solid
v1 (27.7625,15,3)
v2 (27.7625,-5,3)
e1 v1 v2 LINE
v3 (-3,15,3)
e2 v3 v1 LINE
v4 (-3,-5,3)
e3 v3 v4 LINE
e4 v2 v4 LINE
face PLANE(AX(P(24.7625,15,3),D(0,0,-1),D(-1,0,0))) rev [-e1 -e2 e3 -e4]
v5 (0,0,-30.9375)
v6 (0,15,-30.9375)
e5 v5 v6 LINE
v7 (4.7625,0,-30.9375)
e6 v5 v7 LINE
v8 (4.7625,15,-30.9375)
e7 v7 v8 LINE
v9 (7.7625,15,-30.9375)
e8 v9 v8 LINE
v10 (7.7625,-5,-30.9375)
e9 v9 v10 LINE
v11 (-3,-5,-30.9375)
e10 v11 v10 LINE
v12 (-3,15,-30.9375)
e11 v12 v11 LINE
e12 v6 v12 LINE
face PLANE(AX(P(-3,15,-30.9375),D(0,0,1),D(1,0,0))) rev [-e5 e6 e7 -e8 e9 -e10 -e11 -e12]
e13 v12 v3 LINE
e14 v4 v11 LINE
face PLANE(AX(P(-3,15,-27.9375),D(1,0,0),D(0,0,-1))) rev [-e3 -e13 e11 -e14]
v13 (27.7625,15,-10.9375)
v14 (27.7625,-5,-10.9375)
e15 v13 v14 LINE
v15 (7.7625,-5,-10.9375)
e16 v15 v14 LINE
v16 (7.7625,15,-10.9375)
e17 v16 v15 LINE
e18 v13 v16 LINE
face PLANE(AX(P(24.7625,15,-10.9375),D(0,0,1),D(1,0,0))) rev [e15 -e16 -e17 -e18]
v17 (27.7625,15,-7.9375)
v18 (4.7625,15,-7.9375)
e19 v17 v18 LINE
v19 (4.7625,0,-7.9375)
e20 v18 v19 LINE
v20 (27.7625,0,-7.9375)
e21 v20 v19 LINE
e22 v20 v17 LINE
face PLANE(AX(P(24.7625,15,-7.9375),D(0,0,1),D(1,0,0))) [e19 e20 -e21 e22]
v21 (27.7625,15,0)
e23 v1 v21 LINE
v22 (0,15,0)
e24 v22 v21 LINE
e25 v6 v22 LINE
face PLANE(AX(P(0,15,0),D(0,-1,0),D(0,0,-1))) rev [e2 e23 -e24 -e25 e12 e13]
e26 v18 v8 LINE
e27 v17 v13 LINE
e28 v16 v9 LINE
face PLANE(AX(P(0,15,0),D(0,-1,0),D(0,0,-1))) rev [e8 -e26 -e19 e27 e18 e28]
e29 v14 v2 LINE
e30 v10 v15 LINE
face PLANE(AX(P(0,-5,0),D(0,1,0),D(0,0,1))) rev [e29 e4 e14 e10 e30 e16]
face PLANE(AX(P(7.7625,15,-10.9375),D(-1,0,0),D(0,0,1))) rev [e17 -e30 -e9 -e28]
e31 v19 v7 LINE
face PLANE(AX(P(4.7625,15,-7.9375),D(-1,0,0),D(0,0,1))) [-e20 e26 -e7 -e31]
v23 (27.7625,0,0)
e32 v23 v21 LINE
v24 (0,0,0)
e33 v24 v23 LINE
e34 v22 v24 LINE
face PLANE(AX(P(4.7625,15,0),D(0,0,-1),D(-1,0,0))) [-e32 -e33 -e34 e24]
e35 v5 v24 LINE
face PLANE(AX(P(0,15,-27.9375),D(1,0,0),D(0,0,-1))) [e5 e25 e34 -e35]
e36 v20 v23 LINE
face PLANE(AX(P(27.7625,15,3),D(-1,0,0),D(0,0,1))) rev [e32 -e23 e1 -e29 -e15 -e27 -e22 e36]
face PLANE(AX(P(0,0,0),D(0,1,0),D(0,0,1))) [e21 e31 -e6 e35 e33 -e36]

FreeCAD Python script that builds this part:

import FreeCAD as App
import Part
import Sketcher
from FreeCAD import Vector
Q = App.Units.Quantity


def add_polygon(sketch, points):
    """Adds a closed chain of lines whose ends are joined by coincident constraints."""
    first, n = sketch.GeometryCount, len(points)
    for a, b in zip(points, points[1:] + points[:1]):
        sketch.addGeometry(Part.LineSegment(App.Vector(*a, 0), App.Vector(*b, 0)), False)
    for i in range(n):
        sketch.addConstraint(Sketcher.Constraint("Coincident", first + i, 2, first + (i + 1) % n, 1))

doc = App.newDocument("Part")
body = doc.addObject("PartDesign::Body", "Body")

# Sketch on XZ plane
sketch1 = body.newObject("Sketcher::SketchObject", "Sketch")
sketch1.AttachmentSupport = (doc.getObject("XZ_Plane"), [""])
sketch1.MapMode = "FlatFace"
add_polygon(sketch1, [(7.7625, -10.9375), (7.7625, -30.9375), (-3, -30.9375), (-3, 3), (27.7625, 3), (27.7625, -10.9375)])  # lines 0-5
add_polygon(sketch1, [(24.7625, 0), (0, 0), (0, -27.9375), (4.7625, -27.9375), (4.7625, -7.9375), (24.7625, -7.9375)])  # lines 6-11
sketch1.addConstraint(Sketcher.Constraint("Vertical", 0))
sketch1.addConstraint(Sketcher.Constraint("Horizontal", 1))
sketch1.addConstraint(Sketcher.Constraint("Vertical", 2))
sketch1.addConstraint(Sketcher.Constraint("Horizontal", 3))
sketch1.addConstraint(Sketcher.Constraint("Vertical", 4))
sketch1.addConstraint(Sketcher.Constraint("Horizontal", 5))
sketch1.addConstraint(Sketcher.Constraint("Horizontal", 6))
sketch1.addConstraint(Sketcher.Constraint("Vertical", 7))
sketch1.addConstraint(Sketcher.Constraint("Horizontal", 8))
sketch1.addConstraint(Sketcher.Constraint("Vertical", 9))
sketch1.addConstraint(Sketcher.Constraint("Horizontal", 10))
sketch1.addConstraint(Sketcher.Constraint("Vertical", 11))
sketch1.addConstraint(Sketcher.Constraint("Coincident", 6, 2, -1, 1))
sketch1.addConstraint(Sketcher.Constraint("Equal", 5, 10))
sketch1.addConstraint(Sketcher.Constraint("Equal", 10, 0))
sketch1.addConstraint(Sketcher.Constraint("Equal", 0, 9))
sketch1.addConstraint(Sketcher.Constraint("DistanceX", 5, 2, 5, 1, Q("20 mm")))
sketch1.addConstraint(Sketcher.Constraint("DistanceX", 1, 2, -1, 1, Q("3 mm")))
sketch1.addConstraint(Sketcher.Constraint("DistanceY", -1, 1, 2, 2, Q("3 mm")))
sketch1.addConstraint(Sketcher.Constraint("DistanceY", 1, 2, 7, 2, Q("3 mm")))
sketch1.addConstraint(Sketcher.Constraint("DistanceX", 8, 2, 0, 2, Q("3 mm")))
sketch1.addConstraint(Sketcher.Constraint("DistanceX", 1, 2, 1, 1, Q("10.7625 mm")))
sketch1.addConstraint(Sketcher.Constraint("DistanceY", 2, 1, 2, 2, Q("33.9375 mm")))
pad1 = body.newObject("PartDesign::Pad", "Pad")
pad1.Profile = sketch1
pad1.Length = 15
pad1.Reversed = True

# Sketch on XZ plane
sketch2 = body.newObject("Sketcher::SketchObject", "Sketch001")
sketch2.AttachmentSupport = (doc.getObject("XZ_Plane"), [""])
sketch2.MapMode = "FlatFace"
add_polygon(sketch2, [(27.7625, -10.9375), (27.7625, 3), (-3, 3), (-3, -30.9375), (7.7625, -30.9375), (7.7625, -10.9375)])  # lines 0-5
sketch2.addConstraint(Sketcher.Constraint("Vertical", 0))
sketch2.addConstraint(Sketcher.Constraint("Horizontal", 1))
sketch2.addConstraint(Sketcher.Constraint("Vertical", 2))
sketch2.addConstraint(Sketcher.Constraint("Horizontal", 3))
sketch2.addConstraint(Sketcher.Constraint("Vertical", 4))
sketch2.addConstraint(Sketcher.Constraint("Horizontal", 5))
sketch2.addConstraint(Sketcher.Constraint("Equal", 5, 4))
sketch2.addConstraint(Sketcher.Constraint("DistanceX", 5, 1, 5, 2, Q("20 mm")))
sketch2.addConstraint(Sketcher.Constraint("DistanceY", -1, 1, 0, 2, Q("3 mm")))
sketch2.addConstraint(Sketcher.Constraint("DistanceX", 1, 2, -1, 1, Q("3 mm")))
sketch2.addConstraint(Sketcher.Constraint("DistanceX", 1, 2, 1, 1, Q("30.7625 mm")))
sketch2.addConstraint(Sketcher.Constraint("DistanceY", 0, 1, 0, 2, Q("13.9375 mm")))
pad2 = body.newObject("PartDesign::Pad", "Pad001")
pad2.Profile = sketch2
pad2.Length = 5

# Sketch on XZ plane
sketch3 = body.newObject("Sketcher::SketchObject", "Sketch002")
sketch3.AttachmentSupport = (doc.getObject("XZ_Plane"), [""])
sketch3.MapMode = "FlatFace"
sketch3.AttachmentOffset = App.Placement(Vector(0, 0, -15), App.Rotation())
add_polygon(sketch3, [(0, -30.9375), (0, -27.9375), (4.7625, -27.9375), (4.7625, -30.9375)])  # lines 0-3
add_polygon(sketch3, [(24.7625, -7.9375), (24.7625, 0), (27.7625, 0), (27.7625, -7.9375)])  # lines 4-7
sketch3.addConstraint(Sketcher.Constraint("Vertical", 0))
sketch3.addConstraint(Sketcher.Constraint("Horizontal", 1))
sketch3.addConstraint(Sketcher.Constraint("Vertical", 2))
sketch3.addConstraint(Sketcher.Constraint("Horizontal", 3))
sketch3.addConstraint(Sketcher.Constraint("Vertical", 4))
sketch3.addConstraint(Sketcher.Constraint("Horizontal", 5))
sketch3.addConstraint(Sketcher.Constraint("Vertical", 6))
sketch3.addConstraint(Sketcher.Constraint("Horizontal", 7))
sketch3.addConstraint(Sketcher.Constraint("PointOnObject", 0, 2, -2))
sketch3.addConstraint(Sketcher.Constraint("PointOnObject", 4, 2, -1))
sketch3.addConstraint(Sketcher.Constraint("Equal", 7, 0))
sketch3.addConstraint(Sketcher.Constraint("DistanceX", 5, 1, 5, 2, Q("3 mm")))
sketch3.addConstraint(Sketcher.Constraint("DistanceX", 1, 2, 4, 2, Q("20 mm")))
sketch3.addConstraint(Sketcher.Constraint("DistanceY", 1, 2, 6, 2, Q("20 mm")))
sketch3.addConstraint(Sketcher.Constraint("DistanceX", 1, 1, 1, 2, Q("4.7625 mm")))
sketch3.addConstraint(Sketcher.Constraint("DistanceY", 4, 1, 4, 2, Q("7.9375 mm")))
pocket1 = body.newObject("PartDesign::Pocket", "Pocket")
pocket1.Profile = sketch3
pocket1.Length = 15
pocket1.Reversed = True

doc.recompute()
